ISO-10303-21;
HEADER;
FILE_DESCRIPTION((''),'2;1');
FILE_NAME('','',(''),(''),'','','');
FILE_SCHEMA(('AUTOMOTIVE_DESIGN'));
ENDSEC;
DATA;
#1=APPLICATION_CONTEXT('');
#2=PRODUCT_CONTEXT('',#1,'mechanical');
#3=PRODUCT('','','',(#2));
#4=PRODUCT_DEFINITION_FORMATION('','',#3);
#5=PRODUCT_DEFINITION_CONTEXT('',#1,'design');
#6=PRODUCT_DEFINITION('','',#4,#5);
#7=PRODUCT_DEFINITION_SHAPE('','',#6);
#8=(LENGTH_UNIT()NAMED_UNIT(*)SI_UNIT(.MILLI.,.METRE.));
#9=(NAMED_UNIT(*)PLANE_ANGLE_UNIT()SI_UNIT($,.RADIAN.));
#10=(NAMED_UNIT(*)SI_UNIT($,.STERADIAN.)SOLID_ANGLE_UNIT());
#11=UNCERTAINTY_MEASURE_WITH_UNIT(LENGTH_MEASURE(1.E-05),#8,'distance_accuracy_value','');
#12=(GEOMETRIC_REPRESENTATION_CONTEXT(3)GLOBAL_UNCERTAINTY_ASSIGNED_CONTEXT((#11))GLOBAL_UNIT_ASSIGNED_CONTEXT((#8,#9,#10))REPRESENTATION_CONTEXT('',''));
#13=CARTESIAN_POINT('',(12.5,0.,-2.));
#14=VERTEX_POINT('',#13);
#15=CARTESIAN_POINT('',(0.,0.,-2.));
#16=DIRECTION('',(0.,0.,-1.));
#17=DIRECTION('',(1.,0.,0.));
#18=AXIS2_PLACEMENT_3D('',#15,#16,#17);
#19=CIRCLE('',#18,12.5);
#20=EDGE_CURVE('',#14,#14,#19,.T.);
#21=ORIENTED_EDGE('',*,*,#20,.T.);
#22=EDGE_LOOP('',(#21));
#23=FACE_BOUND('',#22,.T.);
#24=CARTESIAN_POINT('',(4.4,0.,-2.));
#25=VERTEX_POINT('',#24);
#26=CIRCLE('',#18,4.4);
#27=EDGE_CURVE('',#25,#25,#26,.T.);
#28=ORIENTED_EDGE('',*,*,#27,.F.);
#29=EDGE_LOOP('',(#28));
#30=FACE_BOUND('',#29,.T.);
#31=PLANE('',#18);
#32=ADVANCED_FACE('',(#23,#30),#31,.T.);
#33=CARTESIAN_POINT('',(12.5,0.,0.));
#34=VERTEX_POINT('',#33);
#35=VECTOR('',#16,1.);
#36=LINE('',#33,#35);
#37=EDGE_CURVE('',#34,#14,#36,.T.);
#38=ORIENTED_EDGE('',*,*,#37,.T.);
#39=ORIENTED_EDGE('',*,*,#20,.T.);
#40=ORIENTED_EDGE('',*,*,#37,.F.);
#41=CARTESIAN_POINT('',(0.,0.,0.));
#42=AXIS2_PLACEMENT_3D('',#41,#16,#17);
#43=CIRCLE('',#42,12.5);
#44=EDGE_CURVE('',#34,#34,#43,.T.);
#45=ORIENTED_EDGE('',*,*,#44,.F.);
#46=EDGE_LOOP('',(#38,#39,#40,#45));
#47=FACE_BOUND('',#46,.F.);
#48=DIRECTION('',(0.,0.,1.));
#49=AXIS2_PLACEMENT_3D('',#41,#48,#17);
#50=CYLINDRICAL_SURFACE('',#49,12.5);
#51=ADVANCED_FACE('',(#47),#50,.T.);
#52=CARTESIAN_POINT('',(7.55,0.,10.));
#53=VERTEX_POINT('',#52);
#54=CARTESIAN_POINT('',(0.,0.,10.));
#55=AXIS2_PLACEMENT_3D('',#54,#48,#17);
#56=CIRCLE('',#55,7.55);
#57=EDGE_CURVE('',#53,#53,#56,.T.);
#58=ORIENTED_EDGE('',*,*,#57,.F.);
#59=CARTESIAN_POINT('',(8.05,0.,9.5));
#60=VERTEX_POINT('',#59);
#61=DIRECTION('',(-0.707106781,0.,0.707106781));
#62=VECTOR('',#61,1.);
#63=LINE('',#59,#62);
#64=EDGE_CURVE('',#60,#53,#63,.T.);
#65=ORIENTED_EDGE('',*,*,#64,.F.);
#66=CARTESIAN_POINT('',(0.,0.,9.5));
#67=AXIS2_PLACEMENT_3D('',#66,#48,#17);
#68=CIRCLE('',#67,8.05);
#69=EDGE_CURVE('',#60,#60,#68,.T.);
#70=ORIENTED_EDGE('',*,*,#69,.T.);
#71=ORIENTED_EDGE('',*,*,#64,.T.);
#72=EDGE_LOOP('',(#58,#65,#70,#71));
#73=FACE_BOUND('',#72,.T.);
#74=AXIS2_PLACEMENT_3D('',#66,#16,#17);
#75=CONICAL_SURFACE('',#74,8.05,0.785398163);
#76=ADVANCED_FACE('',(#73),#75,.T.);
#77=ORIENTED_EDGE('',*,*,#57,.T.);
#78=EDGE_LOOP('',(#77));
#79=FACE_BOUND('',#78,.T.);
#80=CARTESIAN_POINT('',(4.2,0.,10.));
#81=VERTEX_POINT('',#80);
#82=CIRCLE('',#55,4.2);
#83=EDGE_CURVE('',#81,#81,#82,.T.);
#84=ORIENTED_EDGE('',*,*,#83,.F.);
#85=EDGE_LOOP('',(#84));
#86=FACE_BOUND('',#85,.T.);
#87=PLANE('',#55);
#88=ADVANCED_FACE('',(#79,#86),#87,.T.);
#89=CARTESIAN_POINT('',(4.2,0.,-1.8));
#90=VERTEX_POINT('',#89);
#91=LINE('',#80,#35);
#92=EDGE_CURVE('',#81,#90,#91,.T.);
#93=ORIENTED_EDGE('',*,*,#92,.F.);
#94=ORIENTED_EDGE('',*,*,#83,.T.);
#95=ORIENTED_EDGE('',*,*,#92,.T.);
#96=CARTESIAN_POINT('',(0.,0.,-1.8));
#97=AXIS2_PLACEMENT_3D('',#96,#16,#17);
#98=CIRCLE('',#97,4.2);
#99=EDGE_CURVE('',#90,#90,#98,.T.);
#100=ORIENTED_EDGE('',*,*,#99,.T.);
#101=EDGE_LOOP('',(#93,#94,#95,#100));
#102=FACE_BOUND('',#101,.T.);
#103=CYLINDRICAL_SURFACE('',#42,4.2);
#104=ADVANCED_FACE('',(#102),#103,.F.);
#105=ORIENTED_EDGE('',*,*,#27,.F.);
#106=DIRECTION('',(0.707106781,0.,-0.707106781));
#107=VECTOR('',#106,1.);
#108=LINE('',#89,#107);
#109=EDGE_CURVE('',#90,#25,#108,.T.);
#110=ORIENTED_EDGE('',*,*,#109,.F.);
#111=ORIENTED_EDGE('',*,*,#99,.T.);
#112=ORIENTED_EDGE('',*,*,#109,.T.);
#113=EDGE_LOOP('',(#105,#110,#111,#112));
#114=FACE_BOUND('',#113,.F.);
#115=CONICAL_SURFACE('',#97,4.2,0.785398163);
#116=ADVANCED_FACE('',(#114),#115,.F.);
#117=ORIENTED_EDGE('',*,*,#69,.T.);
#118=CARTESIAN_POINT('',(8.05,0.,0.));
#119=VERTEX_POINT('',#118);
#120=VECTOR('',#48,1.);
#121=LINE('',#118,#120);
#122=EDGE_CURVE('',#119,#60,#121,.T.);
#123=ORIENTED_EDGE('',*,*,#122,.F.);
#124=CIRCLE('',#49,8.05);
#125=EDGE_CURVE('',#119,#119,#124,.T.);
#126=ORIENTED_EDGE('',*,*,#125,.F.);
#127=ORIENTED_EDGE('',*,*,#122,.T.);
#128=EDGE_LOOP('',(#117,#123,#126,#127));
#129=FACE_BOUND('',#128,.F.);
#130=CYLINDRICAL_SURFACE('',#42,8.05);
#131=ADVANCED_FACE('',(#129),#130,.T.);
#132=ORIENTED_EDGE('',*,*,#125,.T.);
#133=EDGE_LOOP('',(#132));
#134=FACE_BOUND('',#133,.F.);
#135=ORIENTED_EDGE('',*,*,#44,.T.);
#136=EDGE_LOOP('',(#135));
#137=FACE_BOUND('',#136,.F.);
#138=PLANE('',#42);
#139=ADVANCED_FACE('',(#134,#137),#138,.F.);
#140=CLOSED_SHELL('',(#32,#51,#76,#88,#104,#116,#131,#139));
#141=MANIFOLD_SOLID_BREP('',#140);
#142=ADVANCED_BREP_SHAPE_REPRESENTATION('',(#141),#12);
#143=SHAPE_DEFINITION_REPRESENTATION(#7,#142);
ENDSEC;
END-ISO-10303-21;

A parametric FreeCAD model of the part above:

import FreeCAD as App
import Part
import Sketcher
Q = App.Units.Quantity


def edges_at(feature, points):
    """Names of the edges that pass closest to the given points."""
    edges = feature.Shape.Edges
    near = lambda p: min(range(len(edges)), key=lambda i: edges[i].distToShape(Part.Vertex(*p))[0])
    return sorted({f"Edge{near(p) + 1}" for p in points})

doc = App.newDocument("Part")
body = doc.addObject("PartDesign::Body", "Body")

# Sketch on XY plane
sketch1 = body.newObject("Sketcher::SketchObject", "Sketch")
sketch1.AttachmentSupport = (doc.getObject("XY_Plane"), [""])
sketch1.MapMode = "FlatFace"
sketch1.addGeometry([
    Part.Circle(App.Vector(0, 0, 0), App.Vector(0, 0, 1), 8.1),
    Part.Circle(App.Vector(0, 0, 0), App.Vector(0, 0, 1), 4.2),
], False)
sketch1.addConstraint([
    Sketcher.Constraint("Coincident", 0, 3, -1, 1),
    Sketcher.Constraint("Coincident", 1, 3, -1, 1),
    Sketcher.Constraint("Diameter", 0, Q("16.1 mm")),
    Sketcher.Constraint("Diameter", 1, Q("8.4 mm")),
])
pad1 = body.newObject("PartDesign::Pad", "Pad")
pad1.Profile = sketch1
pad1.Length = 10

# Sketch on XY plane
sketch2 = body.newObject("Sketcher::SketchObject", "Sketch001")
sketch2.AttachmentSupport = (doc.getObject("XY_Plane"), [""])
sketch2.MapMode = "FlatFace"
sketch2.addGeometry([
    Part.Circle(App.Vector(0, 0, 0), App.Vector(0, 0, 1), 12.5),
    Part.Circle(App.Vector(0, 0, 0), App.Vector(0, 0, 1), 4.2),
], False)
sketch2.addConstraint([
    Sketcher.Constraint("Coincident", 0, 3, -1, 1),
    Sketcher.Constraint("Coincident", 1, 3, -1, 1),
    Sketcher.Constraint("Diameter", 0, Q("25 mm")),
    Sketcher.Constraint("Diameter", 1, Q("8.4 mm")),
])
pad2 = body.newObject("PartDesign::Pad", "Pad001")
pad2.Profile = sketch2
pad2.Length = 2
pad2.Reversed = True
doc.recompute()

chamfer = body.newObject("PartDesign::Chamfer", "Chamfer")
chamfer.Base = (pad2, edges_at(pad2, [(-7.505, -2.911, 10)]))
chamfer.Size = 0.5
doc.recompute()

chamfer2 = body.newObject("PartDesign::Chamfer", "Chamfer001")
chamfer2.Base = (chamfer, edges_at(chamfer, [(-3.916, -1.519, -2)]))
chamfer2.Size = 0.2

doc.recompute()
